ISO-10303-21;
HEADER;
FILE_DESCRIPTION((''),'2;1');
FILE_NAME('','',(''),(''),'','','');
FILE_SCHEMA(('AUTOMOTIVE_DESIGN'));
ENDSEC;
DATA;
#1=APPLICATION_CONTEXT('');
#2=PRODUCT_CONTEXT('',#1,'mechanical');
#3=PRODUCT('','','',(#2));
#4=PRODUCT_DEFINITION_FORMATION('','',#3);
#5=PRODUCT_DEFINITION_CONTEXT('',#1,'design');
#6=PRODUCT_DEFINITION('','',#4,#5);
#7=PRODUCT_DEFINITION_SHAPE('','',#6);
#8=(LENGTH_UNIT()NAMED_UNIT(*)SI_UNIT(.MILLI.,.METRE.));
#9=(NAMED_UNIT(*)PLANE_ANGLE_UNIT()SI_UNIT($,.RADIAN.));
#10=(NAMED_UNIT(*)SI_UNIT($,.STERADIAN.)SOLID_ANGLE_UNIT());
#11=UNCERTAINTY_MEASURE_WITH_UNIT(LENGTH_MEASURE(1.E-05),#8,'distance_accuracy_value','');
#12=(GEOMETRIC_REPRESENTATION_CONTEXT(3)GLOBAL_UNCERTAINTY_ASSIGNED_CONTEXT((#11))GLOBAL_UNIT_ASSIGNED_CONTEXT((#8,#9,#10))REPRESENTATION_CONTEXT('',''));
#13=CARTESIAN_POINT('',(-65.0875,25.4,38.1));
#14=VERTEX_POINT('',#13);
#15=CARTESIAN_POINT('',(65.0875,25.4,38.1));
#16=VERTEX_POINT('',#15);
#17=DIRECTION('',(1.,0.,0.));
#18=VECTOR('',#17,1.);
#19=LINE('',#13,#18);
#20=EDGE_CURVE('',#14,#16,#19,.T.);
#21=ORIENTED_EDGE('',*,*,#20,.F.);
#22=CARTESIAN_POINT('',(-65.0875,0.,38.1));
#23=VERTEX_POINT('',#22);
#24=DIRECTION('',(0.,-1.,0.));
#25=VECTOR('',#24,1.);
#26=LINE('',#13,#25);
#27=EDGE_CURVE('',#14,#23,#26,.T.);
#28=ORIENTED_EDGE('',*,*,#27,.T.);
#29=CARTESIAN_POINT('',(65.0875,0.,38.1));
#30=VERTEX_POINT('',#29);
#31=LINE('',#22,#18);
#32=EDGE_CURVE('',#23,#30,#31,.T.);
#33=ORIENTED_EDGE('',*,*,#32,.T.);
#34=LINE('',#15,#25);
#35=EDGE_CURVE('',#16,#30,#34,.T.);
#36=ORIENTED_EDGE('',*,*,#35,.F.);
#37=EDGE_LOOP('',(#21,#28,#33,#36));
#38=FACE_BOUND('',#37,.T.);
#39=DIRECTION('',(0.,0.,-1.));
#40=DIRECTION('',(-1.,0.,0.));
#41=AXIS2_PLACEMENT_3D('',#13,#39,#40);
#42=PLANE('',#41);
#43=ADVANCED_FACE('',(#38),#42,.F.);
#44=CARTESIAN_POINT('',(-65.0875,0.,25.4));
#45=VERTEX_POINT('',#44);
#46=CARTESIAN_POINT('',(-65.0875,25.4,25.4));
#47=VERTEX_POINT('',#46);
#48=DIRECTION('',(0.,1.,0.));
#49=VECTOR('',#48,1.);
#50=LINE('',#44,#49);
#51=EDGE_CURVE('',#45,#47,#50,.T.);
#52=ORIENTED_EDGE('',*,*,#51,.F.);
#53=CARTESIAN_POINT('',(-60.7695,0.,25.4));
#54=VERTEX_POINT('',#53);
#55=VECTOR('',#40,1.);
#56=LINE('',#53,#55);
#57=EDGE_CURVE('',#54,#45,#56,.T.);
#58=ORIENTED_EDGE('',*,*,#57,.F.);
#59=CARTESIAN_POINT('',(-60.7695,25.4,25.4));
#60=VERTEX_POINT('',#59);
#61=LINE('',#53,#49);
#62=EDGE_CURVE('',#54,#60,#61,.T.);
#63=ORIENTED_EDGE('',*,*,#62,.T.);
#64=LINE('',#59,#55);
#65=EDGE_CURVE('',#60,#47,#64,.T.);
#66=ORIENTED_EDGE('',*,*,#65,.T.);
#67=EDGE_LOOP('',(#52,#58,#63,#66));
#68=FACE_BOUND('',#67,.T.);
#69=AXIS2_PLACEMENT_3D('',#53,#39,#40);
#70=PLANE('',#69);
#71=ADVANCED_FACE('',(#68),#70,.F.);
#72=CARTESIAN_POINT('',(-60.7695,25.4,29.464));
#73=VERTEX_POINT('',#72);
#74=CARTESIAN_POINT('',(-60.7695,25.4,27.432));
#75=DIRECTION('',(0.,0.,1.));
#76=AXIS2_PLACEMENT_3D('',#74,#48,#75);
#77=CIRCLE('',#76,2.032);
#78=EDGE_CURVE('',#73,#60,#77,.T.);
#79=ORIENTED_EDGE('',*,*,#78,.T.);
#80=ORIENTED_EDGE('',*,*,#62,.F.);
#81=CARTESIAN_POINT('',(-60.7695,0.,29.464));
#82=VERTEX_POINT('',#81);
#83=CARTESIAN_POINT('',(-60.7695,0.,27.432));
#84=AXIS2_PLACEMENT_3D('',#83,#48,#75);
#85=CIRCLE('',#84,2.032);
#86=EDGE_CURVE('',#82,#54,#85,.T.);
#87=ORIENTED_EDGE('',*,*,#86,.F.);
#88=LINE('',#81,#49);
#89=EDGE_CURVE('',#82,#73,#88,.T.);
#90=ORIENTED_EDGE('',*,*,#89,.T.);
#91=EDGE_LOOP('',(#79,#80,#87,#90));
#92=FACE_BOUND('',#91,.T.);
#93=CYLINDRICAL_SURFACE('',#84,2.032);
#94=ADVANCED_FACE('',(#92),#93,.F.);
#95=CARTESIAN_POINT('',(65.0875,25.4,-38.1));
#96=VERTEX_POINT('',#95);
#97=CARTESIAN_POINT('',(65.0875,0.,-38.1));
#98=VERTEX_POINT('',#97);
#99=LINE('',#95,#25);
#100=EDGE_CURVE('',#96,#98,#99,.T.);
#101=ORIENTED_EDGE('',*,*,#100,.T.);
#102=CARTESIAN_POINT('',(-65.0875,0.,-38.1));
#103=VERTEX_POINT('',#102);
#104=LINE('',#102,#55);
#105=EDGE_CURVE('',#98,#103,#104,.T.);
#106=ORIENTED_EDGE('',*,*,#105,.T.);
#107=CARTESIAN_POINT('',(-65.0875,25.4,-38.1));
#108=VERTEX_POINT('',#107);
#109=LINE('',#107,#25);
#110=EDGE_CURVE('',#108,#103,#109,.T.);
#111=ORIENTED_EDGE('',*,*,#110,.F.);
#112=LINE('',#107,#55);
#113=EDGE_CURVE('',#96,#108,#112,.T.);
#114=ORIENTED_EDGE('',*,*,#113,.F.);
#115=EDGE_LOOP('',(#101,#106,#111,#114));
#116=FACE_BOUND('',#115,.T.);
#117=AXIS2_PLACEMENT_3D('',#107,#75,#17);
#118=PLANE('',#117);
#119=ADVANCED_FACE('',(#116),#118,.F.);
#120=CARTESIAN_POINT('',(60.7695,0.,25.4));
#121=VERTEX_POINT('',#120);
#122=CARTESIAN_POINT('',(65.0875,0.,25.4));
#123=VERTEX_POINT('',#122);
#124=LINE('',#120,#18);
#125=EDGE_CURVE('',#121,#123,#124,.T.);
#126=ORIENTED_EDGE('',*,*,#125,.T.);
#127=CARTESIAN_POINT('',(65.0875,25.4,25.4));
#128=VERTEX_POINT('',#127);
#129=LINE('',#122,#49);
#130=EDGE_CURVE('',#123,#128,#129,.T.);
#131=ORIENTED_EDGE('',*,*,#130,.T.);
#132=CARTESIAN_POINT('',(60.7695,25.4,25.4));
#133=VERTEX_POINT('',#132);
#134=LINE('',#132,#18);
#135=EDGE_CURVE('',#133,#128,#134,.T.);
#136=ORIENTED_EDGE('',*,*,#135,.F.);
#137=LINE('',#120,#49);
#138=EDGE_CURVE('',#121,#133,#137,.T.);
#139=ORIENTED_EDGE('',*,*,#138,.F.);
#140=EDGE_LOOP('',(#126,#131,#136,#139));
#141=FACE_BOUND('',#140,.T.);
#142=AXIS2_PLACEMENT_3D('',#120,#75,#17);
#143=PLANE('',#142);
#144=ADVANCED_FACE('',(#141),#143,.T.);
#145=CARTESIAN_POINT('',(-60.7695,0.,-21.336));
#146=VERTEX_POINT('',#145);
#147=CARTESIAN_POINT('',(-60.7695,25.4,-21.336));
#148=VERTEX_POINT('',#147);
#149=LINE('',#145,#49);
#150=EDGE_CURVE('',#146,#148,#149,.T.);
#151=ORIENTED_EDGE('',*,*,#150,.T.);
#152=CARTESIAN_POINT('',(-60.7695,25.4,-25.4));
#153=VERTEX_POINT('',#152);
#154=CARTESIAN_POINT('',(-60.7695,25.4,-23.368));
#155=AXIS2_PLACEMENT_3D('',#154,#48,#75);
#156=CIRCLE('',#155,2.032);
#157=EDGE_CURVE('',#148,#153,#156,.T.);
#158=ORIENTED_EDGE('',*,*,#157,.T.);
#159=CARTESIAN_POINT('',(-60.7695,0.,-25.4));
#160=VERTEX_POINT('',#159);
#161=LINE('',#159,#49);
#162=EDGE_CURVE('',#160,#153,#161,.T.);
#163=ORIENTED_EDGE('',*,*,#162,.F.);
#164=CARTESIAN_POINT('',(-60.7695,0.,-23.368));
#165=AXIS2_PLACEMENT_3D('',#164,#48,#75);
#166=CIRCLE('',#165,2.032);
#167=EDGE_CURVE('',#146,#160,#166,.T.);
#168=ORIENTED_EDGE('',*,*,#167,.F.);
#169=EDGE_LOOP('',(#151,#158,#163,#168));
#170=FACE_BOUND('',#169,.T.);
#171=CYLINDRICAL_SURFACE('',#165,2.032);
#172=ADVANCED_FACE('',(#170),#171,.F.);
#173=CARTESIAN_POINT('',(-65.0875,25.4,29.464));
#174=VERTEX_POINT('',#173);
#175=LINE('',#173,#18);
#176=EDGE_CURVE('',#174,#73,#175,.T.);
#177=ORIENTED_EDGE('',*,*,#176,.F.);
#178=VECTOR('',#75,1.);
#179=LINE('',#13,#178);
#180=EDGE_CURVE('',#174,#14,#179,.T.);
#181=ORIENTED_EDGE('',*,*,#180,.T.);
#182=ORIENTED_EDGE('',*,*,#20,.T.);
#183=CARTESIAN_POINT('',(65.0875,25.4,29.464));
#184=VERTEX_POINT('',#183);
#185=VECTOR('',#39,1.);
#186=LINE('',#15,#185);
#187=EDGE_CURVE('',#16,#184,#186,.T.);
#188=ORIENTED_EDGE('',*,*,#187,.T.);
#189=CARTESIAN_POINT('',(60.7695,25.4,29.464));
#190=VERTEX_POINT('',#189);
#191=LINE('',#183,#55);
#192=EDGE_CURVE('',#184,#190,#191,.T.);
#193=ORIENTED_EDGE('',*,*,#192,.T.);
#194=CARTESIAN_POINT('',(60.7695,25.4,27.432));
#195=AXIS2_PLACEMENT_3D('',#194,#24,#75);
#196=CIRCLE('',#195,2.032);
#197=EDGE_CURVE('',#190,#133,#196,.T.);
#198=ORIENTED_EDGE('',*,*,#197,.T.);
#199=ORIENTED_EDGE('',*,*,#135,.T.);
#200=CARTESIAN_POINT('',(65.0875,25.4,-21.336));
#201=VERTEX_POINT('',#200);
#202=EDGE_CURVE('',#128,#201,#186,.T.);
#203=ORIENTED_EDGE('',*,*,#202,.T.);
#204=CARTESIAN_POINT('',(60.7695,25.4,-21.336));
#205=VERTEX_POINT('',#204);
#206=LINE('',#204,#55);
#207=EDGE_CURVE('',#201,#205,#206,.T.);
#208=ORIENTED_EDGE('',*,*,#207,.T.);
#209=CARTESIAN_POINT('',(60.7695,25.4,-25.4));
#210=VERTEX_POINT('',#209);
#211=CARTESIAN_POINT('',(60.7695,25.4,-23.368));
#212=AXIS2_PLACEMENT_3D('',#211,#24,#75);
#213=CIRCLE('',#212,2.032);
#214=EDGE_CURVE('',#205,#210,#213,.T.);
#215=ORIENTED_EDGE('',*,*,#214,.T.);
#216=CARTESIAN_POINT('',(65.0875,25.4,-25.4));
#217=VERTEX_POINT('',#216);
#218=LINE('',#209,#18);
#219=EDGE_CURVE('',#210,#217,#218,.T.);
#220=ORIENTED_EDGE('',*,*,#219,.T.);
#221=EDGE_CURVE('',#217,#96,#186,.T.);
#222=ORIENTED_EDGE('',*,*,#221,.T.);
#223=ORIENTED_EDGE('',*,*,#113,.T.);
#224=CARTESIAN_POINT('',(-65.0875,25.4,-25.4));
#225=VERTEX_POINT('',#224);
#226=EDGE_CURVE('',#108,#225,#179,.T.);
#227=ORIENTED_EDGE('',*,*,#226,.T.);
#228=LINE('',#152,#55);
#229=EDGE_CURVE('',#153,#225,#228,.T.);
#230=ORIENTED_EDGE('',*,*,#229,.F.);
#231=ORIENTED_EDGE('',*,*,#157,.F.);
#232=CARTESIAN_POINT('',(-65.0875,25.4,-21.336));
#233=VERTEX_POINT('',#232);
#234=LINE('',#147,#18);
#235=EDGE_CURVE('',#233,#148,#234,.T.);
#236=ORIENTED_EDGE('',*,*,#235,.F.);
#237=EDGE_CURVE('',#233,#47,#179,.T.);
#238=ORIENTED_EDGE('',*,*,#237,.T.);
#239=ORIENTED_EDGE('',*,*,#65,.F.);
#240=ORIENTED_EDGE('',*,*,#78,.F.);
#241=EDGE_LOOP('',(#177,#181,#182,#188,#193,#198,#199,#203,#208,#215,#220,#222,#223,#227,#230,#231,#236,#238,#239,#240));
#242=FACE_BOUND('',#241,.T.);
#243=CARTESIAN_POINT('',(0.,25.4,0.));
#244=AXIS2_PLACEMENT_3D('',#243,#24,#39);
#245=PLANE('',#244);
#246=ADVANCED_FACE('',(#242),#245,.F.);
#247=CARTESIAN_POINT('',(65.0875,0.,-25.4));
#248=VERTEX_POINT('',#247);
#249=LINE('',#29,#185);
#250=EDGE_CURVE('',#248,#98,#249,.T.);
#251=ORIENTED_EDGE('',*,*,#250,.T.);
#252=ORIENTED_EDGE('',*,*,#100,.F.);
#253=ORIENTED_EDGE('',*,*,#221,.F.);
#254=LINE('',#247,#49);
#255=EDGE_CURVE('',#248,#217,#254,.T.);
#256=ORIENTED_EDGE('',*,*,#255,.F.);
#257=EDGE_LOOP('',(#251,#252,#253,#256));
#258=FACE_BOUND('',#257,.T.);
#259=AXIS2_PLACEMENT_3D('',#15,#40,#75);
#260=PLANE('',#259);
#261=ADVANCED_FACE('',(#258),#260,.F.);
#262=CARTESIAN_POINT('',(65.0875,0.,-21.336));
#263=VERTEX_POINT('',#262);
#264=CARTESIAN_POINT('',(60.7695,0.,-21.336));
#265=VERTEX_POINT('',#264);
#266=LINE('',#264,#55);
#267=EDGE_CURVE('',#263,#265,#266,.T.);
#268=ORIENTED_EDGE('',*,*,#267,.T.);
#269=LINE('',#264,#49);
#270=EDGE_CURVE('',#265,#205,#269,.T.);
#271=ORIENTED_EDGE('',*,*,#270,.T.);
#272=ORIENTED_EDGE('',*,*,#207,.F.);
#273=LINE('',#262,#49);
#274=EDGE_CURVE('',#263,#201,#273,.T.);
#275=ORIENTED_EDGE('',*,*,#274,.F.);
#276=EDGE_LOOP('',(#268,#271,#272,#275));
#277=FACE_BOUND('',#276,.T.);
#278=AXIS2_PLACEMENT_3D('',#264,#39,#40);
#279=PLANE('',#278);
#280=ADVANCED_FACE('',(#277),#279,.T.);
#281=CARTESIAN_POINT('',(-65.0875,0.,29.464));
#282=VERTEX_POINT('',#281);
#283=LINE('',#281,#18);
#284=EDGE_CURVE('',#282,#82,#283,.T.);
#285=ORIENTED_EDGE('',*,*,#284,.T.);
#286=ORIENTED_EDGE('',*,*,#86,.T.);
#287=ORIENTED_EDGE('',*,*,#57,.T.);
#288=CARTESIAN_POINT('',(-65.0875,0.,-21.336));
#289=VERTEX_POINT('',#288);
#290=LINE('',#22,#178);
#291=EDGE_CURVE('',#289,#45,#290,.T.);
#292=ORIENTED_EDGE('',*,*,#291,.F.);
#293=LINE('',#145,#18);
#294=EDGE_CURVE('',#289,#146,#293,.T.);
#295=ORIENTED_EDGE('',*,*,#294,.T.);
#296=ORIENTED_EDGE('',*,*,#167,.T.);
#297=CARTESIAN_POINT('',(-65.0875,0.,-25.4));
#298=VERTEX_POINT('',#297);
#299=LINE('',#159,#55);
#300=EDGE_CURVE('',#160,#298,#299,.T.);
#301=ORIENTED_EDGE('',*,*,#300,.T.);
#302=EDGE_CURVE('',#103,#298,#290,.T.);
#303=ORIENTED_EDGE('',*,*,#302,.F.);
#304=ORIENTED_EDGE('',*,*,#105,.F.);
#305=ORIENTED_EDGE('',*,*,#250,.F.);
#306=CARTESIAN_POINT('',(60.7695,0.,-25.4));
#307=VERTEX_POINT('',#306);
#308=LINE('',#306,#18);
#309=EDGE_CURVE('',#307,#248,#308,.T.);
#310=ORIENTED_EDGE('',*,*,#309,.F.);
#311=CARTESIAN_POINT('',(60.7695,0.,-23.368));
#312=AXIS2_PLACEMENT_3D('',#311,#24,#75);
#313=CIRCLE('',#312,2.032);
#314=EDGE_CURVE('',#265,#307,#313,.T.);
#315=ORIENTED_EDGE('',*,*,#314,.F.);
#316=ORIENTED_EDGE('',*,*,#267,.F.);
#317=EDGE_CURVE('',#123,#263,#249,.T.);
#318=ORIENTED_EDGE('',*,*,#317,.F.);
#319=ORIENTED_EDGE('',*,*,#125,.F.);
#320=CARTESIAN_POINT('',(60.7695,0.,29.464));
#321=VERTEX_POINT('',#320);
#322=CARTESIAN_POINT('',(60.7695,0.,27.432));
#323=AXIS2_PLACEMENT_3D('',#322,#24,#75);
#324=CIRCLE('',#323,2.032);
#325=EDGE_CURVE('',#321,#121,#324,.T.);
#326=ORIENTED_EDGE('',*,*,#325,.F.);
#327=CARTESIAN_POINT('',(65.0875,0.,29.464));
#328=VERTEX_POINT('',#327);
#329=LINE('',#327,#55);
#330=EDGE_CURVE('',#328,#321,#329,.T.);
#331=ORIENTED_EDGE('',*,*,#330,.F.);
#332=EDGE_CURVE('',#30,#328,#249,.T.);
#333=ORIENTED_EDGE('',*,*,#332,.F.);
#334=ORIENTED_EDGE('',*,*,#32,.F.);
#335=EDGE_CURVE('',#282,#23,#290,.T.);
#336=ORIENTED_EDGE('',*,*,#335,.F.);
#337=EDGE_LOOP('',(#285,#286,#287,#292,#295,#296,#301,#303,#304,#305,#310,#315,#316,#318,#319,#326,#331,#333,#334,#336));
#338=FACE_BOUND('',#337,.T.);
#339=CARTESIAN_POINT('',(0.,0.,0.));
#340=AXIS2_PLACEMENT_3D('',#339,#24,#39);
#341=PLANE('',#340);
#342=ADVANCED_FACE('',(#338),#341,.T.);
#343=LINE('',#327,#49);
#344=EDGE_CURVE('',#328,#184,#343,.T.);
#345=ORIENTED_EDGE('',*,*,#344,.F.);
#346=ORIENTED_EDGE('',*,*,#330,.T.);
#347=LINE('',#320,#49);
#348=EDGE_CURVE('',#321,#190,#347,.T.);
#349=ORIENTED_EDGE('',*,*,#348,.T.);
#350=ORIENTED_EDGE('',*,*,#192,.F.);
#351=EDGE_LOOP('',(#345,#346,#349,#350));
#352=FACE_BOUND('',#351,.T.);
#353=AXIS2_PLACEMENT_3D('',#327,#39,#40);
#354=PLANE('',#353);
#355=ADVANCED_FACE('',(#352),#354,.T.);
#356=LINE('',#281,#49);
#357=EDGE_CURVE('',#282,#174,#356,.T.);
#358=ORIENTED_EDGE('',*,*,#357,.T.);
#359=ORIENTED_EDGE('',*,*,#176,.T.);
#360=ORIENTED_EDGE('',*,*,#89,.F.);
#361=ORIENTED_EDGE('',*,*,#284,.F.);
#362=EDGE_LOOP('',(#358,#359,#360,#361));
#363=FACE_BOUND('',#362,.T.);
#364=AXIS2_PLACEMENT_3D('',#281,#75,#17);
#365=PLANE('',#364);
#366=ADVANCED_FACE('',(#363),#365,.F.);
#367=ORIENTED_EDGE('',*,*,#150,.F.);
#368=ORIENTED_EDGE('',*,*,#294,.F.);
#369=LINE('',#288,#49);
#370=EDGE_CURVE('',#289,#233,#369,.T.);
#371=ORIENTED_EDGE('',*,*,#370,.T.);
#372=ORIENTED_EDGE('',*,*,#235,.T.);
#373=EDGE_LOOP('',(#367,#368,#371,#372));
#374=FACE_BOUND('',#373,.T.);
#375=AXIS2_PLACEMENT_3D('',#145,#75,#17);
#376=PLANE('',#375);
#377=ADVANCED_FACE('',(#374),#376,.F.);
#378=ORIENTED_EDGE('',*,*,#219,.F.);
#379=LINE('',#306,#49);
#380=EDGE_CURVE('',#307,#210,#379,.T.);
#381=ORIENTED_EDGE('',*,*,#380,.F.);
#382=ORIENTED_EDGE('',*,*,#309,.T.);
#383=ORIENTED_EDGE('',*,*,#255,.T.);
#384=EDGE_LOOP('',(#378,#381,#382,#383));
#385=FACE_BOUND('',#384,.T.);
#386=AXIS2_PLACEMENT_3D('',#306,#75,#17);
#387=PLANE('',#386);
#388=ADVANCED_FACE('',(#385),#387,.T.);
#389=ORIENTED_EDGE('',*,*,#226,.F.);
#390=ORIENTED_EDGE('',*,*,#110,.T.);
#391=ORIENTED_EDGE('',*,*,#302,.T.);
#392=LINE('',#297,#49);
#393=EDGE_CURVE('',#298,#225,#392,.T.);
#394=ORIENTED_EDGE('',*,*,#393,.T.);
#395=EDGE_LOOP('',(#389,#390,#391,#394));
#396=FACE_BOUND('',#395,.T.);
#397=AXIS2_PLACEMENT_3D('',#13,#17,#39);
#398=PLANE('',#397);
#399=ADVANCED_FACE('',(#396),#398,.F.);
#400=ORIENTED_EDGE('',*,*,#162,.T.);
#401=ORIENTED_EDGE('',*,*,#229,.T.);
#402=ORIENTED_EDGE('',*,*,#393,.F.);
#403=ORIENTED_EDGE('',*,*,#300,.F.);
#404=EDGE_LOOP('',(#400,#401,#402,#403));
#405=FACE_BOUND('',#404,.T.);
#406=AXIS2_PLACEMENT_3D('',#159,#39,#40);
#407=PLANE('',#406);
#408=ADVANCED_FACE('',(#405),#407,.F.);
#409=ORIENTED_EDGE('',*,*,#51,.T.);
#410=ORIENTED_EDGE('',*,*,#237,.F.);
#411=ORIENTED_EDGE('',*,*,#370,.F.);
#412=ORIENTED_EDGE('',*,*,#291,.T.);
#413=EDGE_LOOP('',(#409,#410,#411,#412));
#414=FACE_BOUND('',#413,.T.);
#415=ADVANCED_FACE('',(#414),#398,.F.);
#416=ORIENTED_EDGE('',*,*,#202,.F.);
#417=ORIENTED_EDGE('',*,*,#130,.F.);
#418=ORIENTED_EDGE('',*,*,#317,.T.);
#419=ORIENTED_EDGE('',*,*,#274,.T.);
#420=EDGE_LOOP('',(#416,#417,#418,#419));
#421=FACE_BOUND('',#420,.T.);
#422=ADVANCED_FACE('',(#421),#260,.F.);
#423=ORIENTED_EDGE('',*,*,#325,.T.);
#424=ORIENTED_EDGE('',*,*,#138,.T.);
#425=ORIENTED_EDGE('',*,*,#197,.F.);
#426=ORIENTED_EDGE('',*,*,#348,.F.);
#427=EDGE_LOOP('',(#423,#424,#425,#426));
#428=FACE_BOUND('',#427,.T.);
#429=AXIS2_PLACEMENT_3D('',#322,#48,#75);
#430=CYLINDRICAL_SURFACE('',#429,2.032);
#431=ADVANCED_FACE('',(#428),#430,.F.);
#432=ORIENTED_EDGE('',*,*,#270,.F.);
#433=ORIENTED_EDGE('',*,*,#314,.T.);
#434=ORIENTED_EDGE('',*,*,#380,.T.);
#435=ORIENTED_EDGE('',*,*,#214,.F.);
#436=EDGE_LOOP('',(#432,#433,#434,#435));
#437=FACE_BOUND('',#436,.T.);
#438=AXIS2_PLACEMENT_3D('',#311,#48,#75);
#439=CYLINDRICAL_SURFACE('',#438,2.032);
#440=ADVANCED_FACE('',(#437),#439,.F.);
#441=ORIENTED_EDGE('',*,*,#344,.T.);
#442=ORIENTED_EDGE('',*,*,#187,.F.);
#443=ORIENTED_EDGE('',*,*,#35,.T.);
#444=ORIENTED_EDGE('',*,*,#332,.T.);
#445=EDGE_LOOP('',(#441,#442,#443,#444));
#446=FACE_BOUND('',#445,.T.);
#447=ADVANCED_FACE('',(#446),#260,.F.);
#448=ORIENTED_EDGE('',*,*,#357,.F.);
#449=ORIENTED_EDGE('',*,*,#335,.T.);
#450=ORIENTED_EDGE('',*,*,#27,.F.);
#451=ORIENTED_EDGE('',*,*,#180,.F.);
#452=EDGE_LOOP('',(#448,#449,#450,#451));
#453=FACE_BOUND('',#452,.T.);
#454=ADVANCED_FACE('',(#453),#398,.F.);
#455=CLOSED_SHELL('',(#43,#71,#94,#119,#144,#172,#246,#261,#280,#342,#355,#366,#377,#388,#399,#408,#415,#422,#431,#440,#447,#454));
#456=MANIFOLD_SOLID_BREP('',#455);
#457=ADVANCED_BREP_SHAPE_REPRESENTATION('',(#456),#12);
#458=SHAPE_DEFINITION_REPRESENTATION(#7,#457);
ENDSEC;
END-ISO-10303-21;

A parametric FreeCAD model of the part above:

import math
import FreeCAD as App
import Part
import Sketcher
Q = App.Units.Quantity

doc = App.newDocument("Part")
body = doc.addObject("PartDesign::Body", "Body")

# Sketch on XZ plane
sketch1 = doc.addObject("Sketcher::SketchObject", "Sketch")
body.addObject(sketch1)
sketch1.AttachmentSupport = (doc.XZ_Plane, [""])
sketch1.MapMode = "FlatFace"
sketch1.addGeometry(Part.LineSegment(App.Vector(-65.0875, -38.1, 0), App.Vector(-65.0875, 38.1, 0)), False)
sketch1.addGeometry(Part.LineSegment(App.Vector(-65.0875, 38.1, 0), App.Vector(65.0875, 38.1, 0)), False)
sketch1.addGeometry(Part.LineSegment(App.Vector(65.0875, 38.1, 0), App.Vector(65.0875, -38.1, 0)), False)
sketch1.addGeometry(Part.LineSegment(App.Vector(65.0875, -38.1, 0), App.Vector(-65.0875, -38.1, 0)), False)
sketch1.addConstraint(Sketcher.Constraint("Coincident", 0, 2, 1, 1))
sketch1.addConstraint(Sketcher.Constraint("Coincident", 1, 2, 2, 1))
sketch1.addConstraint(Sketcher.Constraint("Coincident", 2, 2, 3, 1))
sketch1.addConstraint(Sketcher.Constraint("Coincident", 3, 2, 0, 1))
sketch1.addConstraint(Sketcher.Constraint("Vertical", 0))
sketch1.addConstraint(Sketcher.Constraint("Horizontal", 1))
sketch1.addConstraint(Sketcher.Constraint("Vertical", 2))
sketch1.addConstraint(Sketcher.Constraint("Horizontal", 3))
sketch1.addConstraint(Sketcher.Constraint("Symmetric", 0, 2, 2, 2, -1, 1))
sketch1.addConstraint(Sketcher.Constraint("DistanceY", 0, 1, 0, 2, Q("3 in")))
sketch1.addConstraint(Sketcher.Constraint("DistanceX", 1, 1, 1, 2, Q("5.125 in")))
pad1 = doc.addObject("PartDesign::Pad", "Pad")
body.addObject(pad1)
pad1.Profile = sketch1
pad1.Length = Q("1 in")
pad1.Reversed = True

# Sketch on XZ plane
sketch2 = doc.addObject("Sketcher::SketchObject", "Sketch001")
body.addObject(sketch2)
sketch2.AttachmentSupport = (doc.XZ_Plane, [""])
sketch2.MapMode = "FlatFace"
sketch2.AttachmentOffset = App.Placement(App.Vector(0, 0, -1 * 25.4), App.Rotation())
sketch2.addGeometry(Part.LineSegment(App.Vector(-60.7695, -25.4, 0), App.Vector(-65.0875, -25.4, 0)), False)
sketch2.addGeometry(Part.LineSegment(App.Vector(-65.0875, -25.4, 0), App.Vector(-65.0875, -21.336, 0)), False)
sketch2.addGeometry(Part.LineSegment(App.Vector(-65.0875, -21.336, 0), App.Vector(-60.7695, -21.336, 0)), False)
sketch2.addGeometry(Part.ArcOfCircle(Part.Circle(App.Vector(-60.7695, -23.368, 0), App.Vector(0, 0, 1), 2.032), math.radians(-90), math.radians(90)), False)
sketch2.addGeometry(Part.LineSegment(App.Vector(-60.7695, 25.4, 0), App.Vector(-65.0875, 25.4, 0)), False)
sketch2.addGeometry(Part.LineSegment(App.Vector(-65.0875, 25.4, 0), App.Vector(-65.0875, 29.464, 0)), False)
sketch2.addGeometry(Part.LineSegment(App.Vector(-65.0875, 29.464, 0), App.Vector(-60.7695, 29.464, 0)), False)
sketch2.addGeometry(Part.ArcOfCircle(Part.Circle(App.Vector(-60.7695, 27.432, 0), App.Vector(0, 0, 1), 2.032), math.radians(-90), math.radians(90)), False)
sketch2.addConstraint(Sketcher.Constraint("Coincident", 0, 2, 1, 1))
sketch2.addConstraint(Sketcher.Constraint("Coincident", 1, 2, 2, 1))
sketch2.addConstraint(Sketcher.Constraint("Tangent", 2, 2, 3, 2))
sketch2.addConstraint(Sketcher.Constraint("Tangent", 3, 1, 0, 1))
sketch2.addConstraint(Sketcher.Constraint("Coincident", 4, 2, 5, 1))
sketch2.addConstraint(Sketcher.Constraint("Coincident", 5, 2, 6, 1))
sketch2.addConstraint(Sketcher.Constraint("Tangent", 6, 2, 7, 2))
sketch2.addConstraint(Sketcher.Constraint("Tangent", 7, 1, 4, 1))
sketch2.addConstraint(Sketcher.Constraint("Horizontal", 0))
sketch2.addConstraint(Sketcher.Constraint("Vertical", 1))
sketch2.addConstraint(Sketcher.Constraint("Horizontal", 2))
sketch2.addConstraint(Sketcher.Constraint("Horizontal", 4))
sketch2.addConstraint(Sketcher.Constraint("Vertical", 5))
sketch2.addConstraint(Sketcher.Constraint("Horizontal", 6))
sketch2.addConstraint(Sketcher.Constraint("Equal", 3, 7))
sketch2.addConstraint(Sketcher.Constraint("Symmetric", 0, 2, 4, 2, -1))
sketch2.addConstraint(Sketcher.Constraint("Vertical", 3, 3, 7, 3))
sketch2.addConstraint(Sketcher.Constraint("Radius", 3, Q("0.08 in")))
sketch2.addConstraint(Sketcher.Constraint("DistanceY", 0, 2, -1, 1, Q("1 in")))
sketch2.addConstraint(Sketcher.Constraint("DistanceX", 0, 2, 0, 1, Q("0.17 in")))
sketch2.addConstraint(Sketcher.Constraint("DistanceX", 0, 2, -1, 1, Q("2.5625 in")))
pocket1 = doc.addObject("PartDesign::Pocket", "Pocket")
body.addObject(pocket1)
pocket1.Profile = sketch2
pocket1.Type = "ThroughAll"
pocket1.Reversed = True
doc.recompute()

mirrored = doc.addObject("PartDesign::Mirrored", "Mirrored")
body.addObject(mirrored)
mirrored.Originals = [pocket1]
mirrored.MirrorPlane = (doc.YZ_Plane, [""])
body.Tip = mirrored

doc.recompute()
